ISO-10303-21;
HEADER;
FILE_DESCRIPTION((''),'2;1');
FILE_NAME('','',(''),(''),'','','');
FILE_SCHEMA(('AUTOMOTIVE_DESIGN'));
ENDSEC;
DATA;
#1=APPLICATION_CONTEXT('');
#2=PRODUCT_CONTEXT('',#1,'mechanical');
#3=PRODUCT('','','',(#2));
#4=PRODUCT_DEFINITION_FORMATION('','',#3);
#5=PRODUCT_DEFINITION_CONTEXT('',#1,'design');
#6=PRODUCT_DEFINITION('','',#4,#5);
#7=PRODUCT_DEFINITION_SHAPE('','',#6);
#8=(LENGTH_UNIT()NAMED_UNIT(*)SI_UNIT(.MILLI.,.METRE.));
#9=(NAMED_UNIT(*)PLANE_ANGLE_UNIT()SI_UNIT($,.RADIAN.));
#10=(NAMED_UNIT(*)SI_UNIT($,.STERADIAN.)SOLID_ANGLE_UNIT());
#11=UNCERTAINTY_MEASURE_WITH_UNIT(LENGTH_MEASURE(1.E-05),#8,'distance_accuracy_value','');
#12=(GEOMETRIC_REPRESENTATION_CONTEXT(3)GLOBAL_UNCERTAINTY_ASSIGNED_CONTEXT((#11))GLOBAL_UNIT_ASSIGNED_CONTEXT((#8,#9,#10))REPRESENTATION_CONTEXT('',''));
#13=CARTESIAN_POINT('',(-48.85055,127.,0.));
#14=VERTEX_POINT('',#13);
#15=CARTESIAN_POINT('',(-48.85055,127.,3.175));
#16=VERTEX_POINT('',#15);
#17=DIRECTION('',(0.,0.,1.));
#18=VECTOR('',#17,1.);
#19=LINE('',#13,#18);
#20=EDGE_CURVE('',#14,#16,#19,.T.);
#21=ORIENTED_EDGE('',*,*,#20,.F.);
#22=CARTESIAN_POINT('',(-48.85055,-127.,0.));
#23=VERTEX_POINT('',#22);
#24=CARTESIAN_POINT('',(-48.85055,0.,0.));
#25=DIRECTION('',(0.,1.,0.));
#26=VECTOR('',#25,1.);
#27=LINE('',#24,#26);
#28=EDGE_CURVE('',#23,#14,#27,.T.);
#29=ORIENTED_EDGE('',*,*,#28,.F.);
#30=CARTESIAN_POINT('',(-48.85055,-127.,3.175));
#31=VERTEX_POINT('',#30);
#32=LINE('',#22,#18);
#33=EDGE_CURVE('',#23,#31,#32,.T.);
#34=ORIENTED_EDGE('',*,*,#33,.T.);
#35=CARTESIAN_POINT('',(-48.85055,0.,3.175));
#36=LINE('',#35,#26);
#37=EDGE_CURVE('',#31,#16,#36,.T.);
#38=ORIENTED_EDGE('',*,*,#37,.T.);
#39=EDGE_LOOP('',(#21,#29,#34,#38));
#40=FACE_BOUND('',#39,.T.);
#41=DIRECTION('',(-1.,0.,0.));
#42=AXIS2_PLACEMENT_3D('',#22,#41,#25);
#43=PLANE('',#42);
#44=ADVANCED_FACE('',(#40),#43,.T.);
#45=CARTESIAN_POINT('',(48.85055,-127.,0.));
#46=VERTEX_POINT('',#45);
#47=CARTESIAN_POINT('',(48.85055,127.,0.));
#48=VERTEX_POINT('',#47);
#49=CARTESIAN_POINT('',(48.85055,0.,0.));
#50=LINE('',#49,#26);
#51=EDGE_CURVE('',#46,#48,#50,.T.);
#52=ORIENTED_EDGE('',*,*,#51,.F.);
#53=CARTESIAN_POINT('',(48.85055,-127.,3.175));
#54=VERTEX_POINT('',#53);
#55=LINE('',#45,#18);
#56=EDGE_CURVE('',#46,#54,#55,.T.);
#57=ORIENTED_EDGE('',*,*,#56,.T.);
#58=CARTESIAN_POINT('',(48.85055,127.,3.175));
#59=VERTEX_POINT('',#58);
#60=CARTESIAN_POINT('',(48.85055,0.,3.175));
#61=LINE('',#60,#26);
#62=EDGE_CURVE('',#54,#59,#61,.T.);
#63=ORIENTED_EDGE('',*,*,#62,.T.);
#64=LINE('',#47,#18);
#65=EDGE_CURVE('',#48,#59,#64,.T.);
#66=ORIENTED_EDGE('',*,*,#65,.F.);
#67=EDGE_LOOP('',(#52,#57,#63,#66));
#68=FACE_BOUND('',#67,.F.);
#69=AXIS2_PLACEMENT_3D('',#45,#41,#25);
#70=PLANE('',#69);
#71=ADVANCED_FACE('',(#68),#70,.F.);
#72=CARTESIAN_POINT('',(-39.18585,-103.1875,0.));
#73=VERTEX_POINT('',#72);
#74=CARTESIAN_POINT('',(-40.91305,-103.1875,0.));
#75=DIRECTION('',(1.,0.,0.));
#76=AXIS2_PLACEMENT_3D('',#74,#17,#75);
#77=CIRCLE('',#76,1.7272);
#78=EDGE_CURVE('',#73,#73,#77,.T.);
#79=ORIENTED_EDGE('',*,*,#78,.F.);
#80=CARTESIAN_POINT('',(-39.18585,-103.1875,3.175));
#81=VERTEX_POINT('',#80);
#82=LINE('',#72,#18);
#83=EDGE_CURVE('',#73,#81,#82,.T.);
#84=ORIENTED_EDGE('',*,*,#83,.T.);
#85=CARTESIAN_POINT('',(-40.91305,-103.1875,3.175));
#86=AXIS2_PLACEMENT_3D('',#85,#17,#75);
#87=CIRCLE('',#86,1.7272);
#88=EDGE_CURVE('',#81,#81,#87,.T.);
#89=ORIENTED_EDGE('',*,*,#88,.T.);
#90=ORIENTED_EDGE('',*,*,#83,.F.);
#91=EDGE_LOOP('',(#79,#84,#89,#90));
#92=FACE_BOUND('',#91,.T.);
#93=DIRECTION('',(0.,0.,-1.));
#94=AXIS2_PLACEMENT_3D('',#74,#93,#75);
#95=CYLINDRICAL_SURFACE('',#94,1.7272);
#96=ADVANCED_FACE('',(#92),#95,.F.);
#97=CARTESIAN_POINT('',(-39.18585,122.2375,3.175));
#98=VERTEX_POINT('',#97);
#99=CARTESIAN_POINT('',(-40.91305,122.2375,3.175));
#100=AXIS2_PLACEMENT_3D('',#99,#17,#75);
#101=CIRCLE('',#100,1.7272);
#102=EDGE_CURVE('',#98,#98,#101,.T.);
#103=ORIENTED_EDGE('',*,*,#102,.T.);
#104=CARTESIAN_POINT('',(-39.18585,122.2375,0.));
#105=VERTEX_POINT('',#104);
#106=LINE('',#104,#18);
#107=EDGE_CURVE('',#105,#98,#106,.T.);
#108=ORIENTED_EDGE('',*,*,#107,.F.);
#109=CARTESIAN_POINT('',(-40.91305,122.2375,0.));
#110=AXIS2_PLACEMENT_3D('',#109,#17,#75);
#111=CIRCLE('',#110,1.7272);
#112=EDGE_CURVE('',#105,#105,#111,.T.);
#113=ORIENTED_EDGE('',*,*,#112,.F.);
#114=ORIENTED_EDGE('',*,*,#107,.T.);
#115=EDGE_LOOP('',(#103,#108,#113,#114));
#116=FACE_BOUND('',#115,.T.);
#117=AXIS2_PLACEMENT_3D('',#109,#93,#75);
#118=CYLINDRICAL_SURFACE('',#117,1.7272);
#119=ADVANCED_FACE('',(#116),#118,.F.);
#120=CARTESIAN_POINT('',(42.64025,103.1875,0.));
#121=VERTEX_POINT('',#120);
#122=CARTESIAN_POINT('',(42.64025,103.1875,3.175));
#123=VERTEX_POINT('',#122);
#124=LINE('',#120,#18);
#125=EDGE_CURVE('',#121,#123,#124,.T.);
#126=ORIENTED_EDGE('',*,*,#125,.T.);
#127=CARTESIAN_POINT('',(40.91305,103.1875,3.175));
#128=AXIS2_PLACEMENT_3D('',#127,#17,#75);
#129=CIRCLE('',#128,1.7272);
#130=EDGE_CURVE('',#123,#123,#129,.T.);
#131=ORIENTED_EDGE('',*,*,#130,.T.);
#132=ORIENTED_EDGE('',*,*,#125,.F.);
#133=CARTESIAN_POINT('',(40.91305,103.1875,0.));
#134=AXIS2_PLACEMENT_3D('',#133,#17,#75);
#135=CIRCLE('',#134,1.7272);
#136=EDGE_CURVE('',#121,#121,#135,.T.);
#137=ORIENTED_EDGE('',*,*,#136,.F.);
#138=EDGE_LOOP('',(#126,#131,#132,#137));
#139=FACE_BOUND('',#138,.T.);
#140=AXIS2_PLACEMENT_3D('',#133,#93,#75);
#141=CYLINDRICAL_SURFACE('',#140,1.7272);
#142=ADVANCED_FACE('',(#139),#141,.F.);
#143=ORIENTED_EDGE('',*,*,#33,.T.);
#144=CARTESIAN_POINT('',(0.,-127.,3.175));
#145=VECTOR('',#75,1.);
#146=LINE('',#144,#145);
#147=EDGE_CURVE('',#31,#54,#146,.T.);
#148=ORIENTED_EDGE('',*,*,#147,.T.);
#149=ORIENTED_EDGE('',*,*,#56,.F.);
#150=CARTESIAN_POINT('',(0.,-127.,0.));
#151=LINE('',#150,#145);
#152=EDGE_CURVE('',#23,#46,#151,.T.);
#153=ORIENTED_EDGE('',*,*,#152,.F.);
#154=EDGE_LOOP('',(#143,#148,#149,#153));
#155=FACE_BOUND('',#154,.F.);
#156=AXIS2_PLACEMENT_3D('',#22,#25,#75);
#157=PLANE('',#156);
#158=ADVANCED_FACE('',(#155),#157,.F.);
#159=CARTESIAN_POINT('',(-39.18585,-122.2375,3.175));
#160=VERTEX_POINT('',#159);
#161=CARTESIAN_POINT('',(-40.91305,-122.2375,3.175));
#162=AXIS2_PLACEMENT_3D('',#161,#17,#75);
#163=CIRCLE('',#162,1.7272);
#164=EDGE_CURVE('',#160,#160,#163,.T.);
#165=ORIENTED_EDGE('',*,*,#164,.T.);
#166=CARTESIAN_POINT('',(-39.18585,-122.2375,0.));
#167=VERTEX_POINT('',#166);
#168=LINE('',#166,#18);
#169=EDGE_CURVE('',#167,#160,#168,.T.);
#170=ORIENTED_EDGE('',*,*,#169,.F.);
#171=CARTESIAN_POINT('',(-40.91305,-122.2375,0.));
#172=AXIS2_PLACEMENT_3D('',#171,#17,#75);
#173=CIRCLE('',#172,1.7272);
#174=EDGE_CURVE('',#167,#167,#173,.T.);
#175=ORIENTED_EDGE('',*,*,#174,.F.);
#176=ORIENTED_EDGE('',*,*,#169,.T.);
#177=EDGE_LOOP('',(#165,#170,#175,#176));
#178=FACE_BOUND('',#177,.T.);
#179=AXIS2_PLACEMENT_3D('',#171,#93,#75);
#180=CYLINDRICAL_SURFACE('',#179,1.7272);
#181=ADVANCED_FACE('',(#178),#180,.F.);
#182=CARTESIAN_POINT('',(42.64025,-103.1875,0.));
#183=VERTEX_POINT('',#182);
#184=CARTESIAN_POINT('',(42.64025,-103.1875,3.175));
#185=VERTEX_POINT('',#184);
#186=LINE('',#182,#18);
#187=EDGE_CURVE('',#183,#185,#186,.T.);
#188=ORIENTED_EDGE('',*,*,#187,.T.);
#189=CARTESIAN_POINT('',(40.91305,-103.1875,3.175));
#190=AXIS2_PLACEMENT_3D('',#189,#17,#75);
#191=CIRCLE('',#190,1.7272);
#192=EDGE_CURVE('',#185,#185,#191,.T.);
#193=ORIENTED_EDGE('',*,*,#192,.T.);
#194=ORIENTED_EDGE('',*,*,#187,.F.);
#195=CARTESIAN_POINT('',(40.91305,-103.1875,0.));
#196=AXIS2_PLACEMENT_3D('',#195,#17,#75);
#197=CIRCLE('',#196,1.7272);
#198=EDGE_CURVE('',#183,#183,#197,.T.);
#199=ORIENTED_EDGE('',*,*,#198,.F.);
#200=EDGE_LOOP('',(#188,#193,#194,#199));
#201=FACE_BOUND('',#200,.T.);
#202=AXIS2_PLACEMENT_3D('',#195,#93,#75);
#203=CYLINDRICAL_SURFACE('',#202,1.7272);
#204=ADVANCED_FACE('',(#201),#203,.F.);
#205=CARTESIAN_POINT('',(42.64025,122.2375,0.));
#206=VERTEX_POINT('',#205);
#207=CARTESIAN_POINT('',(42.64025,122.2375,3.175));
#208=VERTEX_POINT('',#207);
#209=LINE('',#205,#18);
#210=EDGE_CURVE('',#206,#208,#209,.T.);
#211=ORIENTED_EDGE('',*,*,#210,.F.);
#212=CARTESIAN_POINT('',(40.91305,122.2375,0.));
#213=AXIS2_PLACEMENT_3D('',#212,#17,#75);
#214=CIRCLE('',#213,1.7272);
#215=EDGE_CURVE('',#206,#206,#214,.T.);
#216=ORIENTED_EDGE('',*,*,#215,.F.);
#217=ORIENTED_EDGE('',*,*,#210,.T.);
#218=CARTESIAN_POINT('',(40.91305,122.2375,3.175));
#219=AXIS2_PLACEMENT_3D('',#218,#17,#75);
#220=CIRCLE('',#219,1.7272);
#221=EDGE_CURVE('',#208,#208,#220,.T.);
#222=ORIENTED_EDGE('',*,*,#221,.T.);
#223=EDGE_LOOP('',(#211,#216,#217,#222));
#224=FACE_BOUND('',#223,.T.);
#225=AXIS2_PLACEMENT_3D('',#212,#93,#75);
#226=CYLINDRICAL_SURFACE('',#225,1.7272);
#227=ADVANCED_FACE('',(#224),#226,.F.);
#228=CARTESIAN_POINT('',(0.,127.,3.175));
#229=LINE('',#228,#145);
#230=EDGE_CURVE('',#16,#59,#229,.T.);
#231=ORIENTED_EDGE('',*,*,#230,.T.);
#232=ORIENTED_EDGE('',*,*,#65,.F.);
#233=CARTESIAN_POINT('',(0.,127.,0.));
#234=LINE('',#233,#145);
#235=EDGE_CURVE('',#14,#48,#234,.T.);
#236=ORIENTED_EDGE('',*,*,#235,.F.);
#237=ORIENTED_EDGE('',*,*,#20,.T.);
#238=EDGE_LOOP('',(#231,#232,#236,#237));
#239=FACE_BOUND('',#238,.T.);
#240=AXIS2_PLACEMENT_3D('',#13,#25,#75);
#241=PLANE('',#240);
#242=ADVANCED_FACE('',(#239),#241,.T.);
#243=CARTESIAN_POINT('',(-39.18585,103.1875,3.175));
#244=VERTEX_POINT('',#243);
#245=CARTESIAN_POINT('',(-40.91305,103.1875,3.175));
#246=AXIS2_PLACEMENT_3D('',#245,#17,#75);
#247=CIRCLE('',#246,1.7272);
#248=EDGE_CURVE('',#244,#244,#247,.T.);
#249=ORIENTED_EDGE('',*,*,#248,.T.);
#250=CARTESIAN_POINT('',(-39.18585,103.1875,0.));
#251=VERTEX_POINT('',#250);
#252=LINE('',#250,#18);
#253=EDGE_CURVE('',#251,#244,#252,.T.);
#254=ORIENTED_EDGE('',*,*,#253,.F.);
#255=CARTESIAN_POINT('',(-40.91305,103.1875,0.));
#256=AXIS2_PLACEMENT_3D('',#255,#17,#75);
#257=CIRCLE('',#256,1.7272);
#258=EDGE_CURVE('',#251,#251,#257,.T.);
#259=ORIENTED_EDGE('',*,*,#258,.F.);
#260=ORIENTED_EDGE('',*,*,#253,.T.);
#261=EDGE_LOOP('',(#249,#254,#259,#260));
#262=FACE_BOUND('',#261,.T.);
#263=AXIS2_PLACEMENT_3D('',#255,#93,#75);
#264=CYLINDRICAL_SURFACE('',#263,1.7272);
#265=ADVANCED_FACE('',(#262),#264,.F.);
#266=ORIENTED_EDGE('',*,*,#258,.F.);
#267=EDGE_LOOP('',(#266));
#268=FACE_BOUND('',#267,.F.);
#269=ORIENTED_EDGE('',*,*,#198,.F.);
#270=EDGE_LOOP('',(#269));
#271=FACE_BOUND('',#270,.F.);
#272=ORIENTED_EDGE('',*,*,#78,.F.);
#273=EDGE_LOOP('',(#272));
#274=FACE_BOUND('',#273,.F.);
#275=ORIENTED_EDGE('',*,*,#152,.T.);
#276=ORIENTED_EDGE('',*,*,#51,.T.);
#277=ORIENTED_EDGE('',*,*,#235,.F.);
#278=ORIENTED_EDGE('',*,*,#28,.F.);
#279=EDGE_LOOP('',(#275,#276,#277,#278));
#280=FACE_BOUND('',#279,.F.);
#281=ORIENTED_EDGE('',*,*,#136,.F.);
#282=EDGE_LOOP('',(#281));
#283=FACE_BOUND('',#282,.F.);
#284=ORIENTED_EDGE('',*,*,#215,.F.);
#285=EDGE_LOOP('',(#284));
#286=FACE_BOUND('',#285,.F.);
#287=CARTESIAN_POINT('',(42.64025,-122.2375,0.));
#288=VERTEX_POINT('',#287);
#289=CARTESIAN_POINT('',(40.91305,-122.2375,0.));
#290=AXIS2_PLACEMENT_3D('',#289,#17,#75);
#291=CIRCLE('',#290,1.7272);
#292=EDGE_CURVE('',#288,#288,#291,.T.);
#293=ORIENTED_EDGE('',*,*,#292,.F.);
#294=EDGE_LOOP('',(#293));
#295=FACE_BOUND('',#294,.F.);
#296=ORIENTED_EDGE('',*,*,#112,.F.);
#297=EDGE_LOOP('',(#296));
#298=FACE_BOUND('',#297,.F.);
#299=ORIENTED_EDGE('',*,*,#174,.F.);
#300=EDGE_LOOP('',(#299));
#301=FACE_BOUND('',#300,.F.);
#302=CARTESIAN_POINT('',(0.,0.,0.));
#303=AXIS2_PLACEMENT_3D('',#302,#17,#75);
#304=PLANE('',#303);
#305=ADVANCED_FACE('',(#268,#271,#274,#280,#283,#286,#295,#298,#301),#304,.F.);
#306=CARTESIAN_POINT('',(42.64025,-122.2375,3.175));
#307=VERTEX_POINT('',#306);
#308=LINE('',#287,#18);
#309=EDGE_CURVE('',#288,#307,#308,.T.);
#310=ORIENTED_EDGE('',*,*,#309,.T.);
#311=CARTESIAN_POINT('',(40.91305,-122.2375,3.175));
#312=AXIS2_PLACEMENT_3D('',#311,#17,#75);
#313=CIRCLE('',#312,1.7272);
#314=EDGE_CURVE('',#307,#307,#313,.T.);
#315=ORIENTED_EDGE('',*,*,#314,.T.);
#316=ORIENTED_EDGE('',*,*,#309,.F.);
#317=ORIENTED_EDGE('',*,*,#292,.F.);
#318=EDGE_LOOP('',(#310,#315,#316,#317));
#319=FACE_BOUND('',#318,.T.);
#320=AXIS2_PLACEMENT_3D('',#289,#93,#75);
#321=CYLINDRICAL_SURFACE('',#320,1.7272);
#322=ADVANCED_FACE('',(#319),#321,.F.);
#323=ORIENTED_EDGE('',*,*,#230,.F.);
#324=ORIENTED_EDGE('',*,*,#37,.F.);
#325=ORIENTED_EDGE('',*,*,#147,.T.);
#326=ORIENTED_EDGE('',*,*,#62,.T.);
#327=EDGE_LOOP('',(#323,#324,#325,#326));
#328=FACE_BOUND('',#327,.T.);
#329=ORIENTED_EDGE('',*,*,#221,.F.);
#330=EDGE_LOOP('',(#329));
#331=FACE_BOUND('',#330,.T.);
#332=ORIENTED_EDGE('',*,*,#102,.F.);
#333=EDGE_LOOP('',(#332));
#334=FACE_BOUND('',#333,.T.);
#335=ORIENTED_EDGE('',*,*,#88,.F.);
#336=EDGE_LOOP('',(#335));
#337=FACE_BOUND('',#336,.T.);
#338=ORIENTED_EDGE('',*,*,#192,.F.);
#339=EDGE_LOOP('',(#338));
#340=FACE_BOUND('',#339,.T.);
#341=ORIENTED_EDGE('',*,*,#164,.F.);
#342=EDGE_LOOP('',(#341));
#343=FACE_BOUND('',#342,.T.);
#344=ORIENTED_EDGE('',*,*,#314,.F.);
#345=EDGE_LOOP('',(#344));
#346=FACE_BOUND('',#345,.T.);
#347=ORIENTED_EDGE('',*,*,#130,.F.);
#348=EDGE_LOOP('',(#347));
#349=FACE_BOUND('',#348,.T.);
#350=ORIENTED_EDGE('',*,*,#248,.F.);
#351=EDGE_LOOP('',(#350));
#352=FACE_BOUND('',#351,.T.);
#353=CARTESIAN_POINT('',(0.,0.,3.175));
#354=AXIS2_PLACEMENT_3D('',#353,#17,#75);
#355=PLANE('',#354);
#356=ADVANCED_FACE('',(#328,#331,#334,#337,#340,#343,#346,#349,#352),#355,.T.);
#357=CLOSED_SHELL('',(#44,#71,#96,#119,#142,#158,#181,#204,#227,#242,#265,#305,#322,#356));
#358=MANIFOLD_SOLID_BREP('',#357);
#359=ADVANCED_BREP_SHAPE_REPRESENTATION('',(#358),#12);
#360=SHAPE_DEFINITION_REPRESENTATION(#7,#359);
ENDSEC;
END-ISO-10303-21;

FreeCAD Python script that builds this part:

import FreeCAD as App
import Part
import Sketcher
from FreeCAD import Vector
Q = App.Units.Quantity


def add_polygon(sketch, points):
    """Adds a closed chain of lines whose ends are joined by coincident constraints."""
    first, n = sketch.GeometryCount, len(points)
    for a, b in zip(points, points[1:] + points[:1]):
        sketch.addGeometry(Part.LineSegment(App.Vector(*a, 0), App.Vector(*b, 0)), False)
    for i in range(n):
        sketch.addConstraint(Sketcher.Constraint("Coincident", first + i, 2, first + (i + 1) % n, 1))

doc = App.newDocument("Part")
body = doc.addObject("PartDesign::Body", "Body")

# Sketch on XY plane
sketch1 = doc.addObject("Sketcher::SketchObject", "Sketch")
body.addObject(sketch1)
sketch1.AttachmentSupport = (doc.XY_Plane, [""])
sketch1.MapMode = "FlatFace"
add_polygon(sketch1, [(-48.9, 127), (-48.9, -127), (48.9, -127), (48.9, 127)])  # lines 0-3
sketch1.addGeometry(Part.Circle(Vector(-40.9, -122.2, 0), Vector(0, 0, 1), 1.7), False)  # 4
sketch1.addGeometry(Part.Circle(Vector(-40.9, -103.2, 0), Vector(0, 0, 1), 1.7), False)  # 5
sketch1.addGeometry(Part.Circle(Vector(40.9, -122.2, 0), Vector(0, 0, 1), 1.7), False)  # 6
sketch1.addGeometry(Part.Circle(Vector(40.9, -103.2, 0), Vector(0, 0, 1), 1.7), False)  # 7
sketch1.addGeometry(Part.Circle(Vector(-40.9, 103.2, 0), Vector(0, 0, 1), 1.7), False)  # 8
sketch1.addGeometry(Part.Circle(Vector(-40.9, 122.2, 0), Vector(0, 0, 1), 1.7), False)  # 9
sketch1.addGeometry(Part.Circle(Vector(40.9, 103.2, 0), Vector(0, 0, 1), 1.7), False)  # 10
sketch1.addGeometry(Part.Circle(Vector(40.9, 122.2, 0), Vector(0, 0, 1), 1.7), False)  # 11
sketch1.addConstraint([
    Sketcher.Constraint("Vertical", 0),
    Sketcher.Constraint("Horizontal", 1),
    Sketcher.Constraint("Vertical", 2),
    Sketcher.Constraint("Horizontal", 3),
    Sketcher.Constraint("Equal", 4, 5),
    Sketcher.Constraint("Equal", 5, 6),
    Sketcher.Constraint("Equal", 6, 7),
    Sketcher.Constraint("Equal", 7, 8),
    Sketcher.Constraint("Equal", 8, 9),
    Sketcher.Constraint("Equal", 9, 10),
    Sketcher.Constraint("Equal", 10, 11),
    Sketcher.Constraint("Symmetric", 7, 3, 8, 3, -1, 1),
    Sketcher.Constraint("Symmetric", 6, 3, 9, 3, -1, 1),
    Sketcher.Constraint("Symmetric", 5, 3, 10, 3, -1, 1),
    Sketcher.Constraint("Symmetric", 4, 3, 11, 3, -1, 1),
    Sketcher.Constraint("Symmetric", 0, 2, 2, 2, -1, 1),
    Sketcher.Constraint("Symmetric", 4, 3, 6, 3, -2),
    Sketcher.Constraint("Symmetric", 5, 3, 7, 3, -2),
    Sketcher.Constraint("Vertical", 4, 3, 5, 3),
    Sketcher.Constraint("DistanceY", 0, 2, 0, 1, Q("10 in")),
    Sketcher.Constraint("Diameter", 4, Q("0.136 in")),
    Sketcher.Constraint("DistanceY", 4, 3, 5, 3, Q("0.75 in")),
    Sketcher.Constraint("DistanceX", 1, 1, 1, 2, Q("3.8465 in")),
    Sketcher.Constraint("DistanceY", 4, 3, -1, 1, Q("4.8125 in")),
    Sketcher.Constraint("DistanceX", 0, 2, 4, 3, Q("0.3125 in")),
])
pad1 = doc.addObject("PartDesign::Pad", "Pad")
body.addObject(pad1)
pad1.Profile = sketch1
pad1.Length = Q("0.125 in")

doc.recompute()
